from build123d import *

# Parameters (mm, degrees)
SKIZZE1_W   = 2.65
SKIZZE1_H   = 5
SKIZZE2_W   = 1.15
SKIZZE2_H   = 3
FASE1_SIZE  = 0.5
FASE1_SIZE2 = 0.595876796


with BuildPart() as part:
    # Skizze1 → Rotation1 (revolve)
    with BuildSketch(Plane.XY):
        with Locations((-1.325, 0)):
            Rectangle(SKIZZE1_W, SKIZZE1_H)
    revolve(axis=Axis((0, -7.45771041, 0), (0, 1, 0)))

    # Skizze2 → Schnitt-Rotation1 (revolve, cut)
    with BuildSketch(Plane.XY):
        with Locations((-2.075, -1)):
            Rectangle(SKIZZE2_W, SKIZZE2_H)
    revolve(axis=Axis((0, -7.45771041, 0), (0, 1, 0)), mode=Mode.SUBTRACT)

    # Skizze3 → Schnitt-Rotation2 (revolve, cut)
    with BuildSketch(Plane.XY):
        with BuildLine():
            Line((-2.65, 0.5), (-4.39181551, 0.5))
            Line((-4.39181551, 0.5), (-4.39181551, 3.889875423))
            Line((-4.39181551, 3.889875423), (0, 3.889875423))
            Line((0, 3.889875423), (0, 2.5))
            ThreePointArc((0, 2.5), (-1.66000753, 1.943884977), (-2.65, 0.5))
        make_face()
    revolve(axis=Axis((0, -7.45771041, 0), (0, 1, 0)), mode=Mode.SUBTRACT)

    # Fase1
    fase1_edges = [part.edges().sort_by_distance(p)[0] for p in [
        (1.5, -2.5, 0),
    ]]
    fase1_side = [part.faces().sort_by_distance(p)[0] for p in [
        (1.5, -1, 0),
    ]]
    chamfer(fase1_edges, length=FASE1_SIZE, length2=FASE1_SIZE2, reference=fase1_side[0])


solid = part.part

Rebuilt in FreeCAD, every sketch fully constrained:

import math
import FreeCAD as App
import Part
import Sketcher

V = App.Vector
Q = App.Units.Quantity


def edges_at(feature, points):
    """Names of the edges that pass closest to the given points."""
    edges = feature.Shape.Edges
    near = lambda p: min(range(len(edges)), key=lambda i: edges[i].distToShape(Part.Vertex(*p))[0])
    return sorted({f"Edge{near(p) + 1}" for p in points})


def add_polygon(sketch, points):
    """Adds a closed chain of lines whose ends are joined by coincident constraints."""
    first, n = sketch.GeometryCount, len(points)
    for a, b in zip(points, points[1:] + points[:1]):
        sketch.addGeometry(Part.LineSegment(App.Vector(*a, 0), App.Vector(*b, 0)), False)
    for i in range(n):
        sketch.addConstraint(Sketcher.Constraint("Coincident", first + i, 2, first + (i + 1) % n, 1))

doc = App.newDocument("Part")
body = doc.addObject("PartDesign::Body", "Body")

sketch1 = body.newObject("Sketcher::SketchObject", "Sketch")
sketch1.AttachmentSupport = (doc.getObject("XY_Plane"), [""])
sketch1.MapMode = "FlatFace"
add_polygon(sketch1, [(-2.6, 2.5), (-2.6, -2.5), (0, -2.5), (0, 2.5)])
sketch1.addConstraint(Sketcher.Constraint("Vertical", 0))
sketch1.addConstraint(Sketcher.Constraint("Horizontal", 1))
sketch1.addConstraint(Sketcher.Constraint("Vertical", 2))
sketch1.addConstraint(Sketcher.Constraint("Horizontal", 3))
sketch1.addConstraint(Sketcher.Constraint("Symmetric", 1, 2, 2, 2, -1, 1))
sketch1.addConstraint(Sketcher.Constraint("DistanceY", 0, 2, 0, 1, Q("5 mm")))
sketch1.addConstraint(Sketcher.Constraint("DistanceX", 1, 1, 1, 2, Q("2.65 mm")))
revolution = body.newObject("PartDesign::Revolution", "Revolution")
revolution.Profile = sketch1
revolution.ReferenceAxis = (sketch1, ["V_Axis"])
revolution.Angle = 360

sketch2 = body.newObject("Sketcher::SketchObject", "Sketch001")
sketch2.AttachmentSupport = (doc.getObject("XY_Plane"), [""])
sketch2.MapMode = "FlatFace"
add_polygon(sketch2, [(-2.6, 0.5), (-2.6, -2.5), (-1.5, -2.5), (-1.5, 0.5)])
sketch2.addConstraint(Sketcher.Constraint("Vertical", 0))
sketch2.addConstraint(Sketcher.Constraint("Horizontal", 1))
sketch2.addConstraint(Sketcher.Constraint("Vertical", 2))
sketch2.addConstraint(Sketcher.Constraint("Horizontal", 3))
sketch2.addConstraint(Sketcher.Constraint("DistanceY", 0, 2, 0, 1, Q("3 mm")))
sketch2.addConstraint(Sketcher.Constraint("DistanceX", 1, 1, 1, 2, Q("1.15 mm")))
sketch2.addConstraint(Sketcher.Constraint("DistanceY", 0, 2, -1, 1, Q("2.5 mm")))
sketch2.addConstraint(Sketcher.Constraint("DistanceX", 1, 2, -1, 1, Q("1.5 mm")))
groove = body.newObject("PartDesign::Groove", "Groove")
groove.Profile = sketch2
groove.ReferenceAxis = (sketch2, ["V_Axis"])
groove.Angle = 360

sketch3 = body.newObject("Sketcher::SketchObject", "Sketch002")
sketch3.AttachmentSupport = (doc.getObject("XY_Plane"), [""])
sketch3.MapMode = "FlatFace"
sketch3.addGeometry(Part.LineSegment(V(-4.4, 0.5, 0), V(-2.6, 0.5, 0)), False)
sketch3.addGeometry(Part.ArcOfCircle(Part.Circle(V(0, -0.3, 0), V(0, 0, 1), 2.8), math.radians(90), math.radians(164)), False)
sketch3.addGeometry(Part.LineSegment(V(0, 2.5, 0), V(0, 3.9, 0)), False)
sketch3.addGeometry(Part.LineSegment(V(0, 3.9, 0), V(-4.4, 3.9, 0)), False)
sketch3.addGeometry(Part.LineSegment(V(-4.4, 3.9, 0), V(-4.4, 0.5, 0)), False)
sketch3.addConstraint(Sketcher.Constraint("Coincident", 0, 2, 1, 2))
sketch3.addConstraint(Sketcher.Constraint("Coincident", 1, 1, 2, 1))
sketch3.addConstraint(Sketcher.Constraint("Coincident", 2, 2, 3, 1))
sketch3.addConstraint(Sketcher.Constraint("Coincident", 3, 2, 4, 1))
sketch3.addConstraint(Sketcher.Constraint("Coincident", 4, 2, 0, 1))
sketch3.addConstraint(Sketcher.Constraint("Horizontal", 0))
sketch3.addConstraint(Sketcher.Constraint("Vertical", 2))
sketch3.addConstraint(Sketcher.Constraint("Horizontal", 3))
sketch3.addConstraint(Sketcher.Constraint("Vertical", 4))
sketch3.addConstraint(Sketcher.Constraint("PointOnObject", 1, 3, -2))
sketch3.addConstraint(Sketcher.Constraint("PointOnObject", 1, 1, -2))
sketch3.addConstraint(Sketcher.Constraint("DistanceY", 0, 2, 1, 1, Q("2 mm")))
sketch3.addConstraint(Sketcher.Constraint("DistanceY", -1, 1, 0, 2, Q("0.5 mm")))
sketch3.addConstraint(Sketcher.Constraint("DistanceX", 0, 2, -1, 1, Q("2.65 mm")))
sketch3.addConstraint(Sketcher.Constraint("DistanceY", 1, 3, 2, 2, Q("4.1455 mm")))
sketch3.addConstraint(Sketcher.Constraint("DistanceX", 0, 1, 0, 2, Q("1.741816 mm")))
groove2 = body.newObject("PartDesign::Groove", "Groove001")
groove2.Profile = sketch3
groove2.ReferenceAxis = (sketch3, ["V_Axis"])
groove2.Angle = 360
doc.recompute()

chamfer = body.newObject("PartDesign::Chamfer", "Chamfer")
chamfer.Base = (groove2, edges_at(groove2, [(1.5, -2.5, 0)]))
chamfer.ChamferType = "Two distances"
chamfer.Size = 0.5
chamfer.Size2 = 0.595877

doc.recompute()
